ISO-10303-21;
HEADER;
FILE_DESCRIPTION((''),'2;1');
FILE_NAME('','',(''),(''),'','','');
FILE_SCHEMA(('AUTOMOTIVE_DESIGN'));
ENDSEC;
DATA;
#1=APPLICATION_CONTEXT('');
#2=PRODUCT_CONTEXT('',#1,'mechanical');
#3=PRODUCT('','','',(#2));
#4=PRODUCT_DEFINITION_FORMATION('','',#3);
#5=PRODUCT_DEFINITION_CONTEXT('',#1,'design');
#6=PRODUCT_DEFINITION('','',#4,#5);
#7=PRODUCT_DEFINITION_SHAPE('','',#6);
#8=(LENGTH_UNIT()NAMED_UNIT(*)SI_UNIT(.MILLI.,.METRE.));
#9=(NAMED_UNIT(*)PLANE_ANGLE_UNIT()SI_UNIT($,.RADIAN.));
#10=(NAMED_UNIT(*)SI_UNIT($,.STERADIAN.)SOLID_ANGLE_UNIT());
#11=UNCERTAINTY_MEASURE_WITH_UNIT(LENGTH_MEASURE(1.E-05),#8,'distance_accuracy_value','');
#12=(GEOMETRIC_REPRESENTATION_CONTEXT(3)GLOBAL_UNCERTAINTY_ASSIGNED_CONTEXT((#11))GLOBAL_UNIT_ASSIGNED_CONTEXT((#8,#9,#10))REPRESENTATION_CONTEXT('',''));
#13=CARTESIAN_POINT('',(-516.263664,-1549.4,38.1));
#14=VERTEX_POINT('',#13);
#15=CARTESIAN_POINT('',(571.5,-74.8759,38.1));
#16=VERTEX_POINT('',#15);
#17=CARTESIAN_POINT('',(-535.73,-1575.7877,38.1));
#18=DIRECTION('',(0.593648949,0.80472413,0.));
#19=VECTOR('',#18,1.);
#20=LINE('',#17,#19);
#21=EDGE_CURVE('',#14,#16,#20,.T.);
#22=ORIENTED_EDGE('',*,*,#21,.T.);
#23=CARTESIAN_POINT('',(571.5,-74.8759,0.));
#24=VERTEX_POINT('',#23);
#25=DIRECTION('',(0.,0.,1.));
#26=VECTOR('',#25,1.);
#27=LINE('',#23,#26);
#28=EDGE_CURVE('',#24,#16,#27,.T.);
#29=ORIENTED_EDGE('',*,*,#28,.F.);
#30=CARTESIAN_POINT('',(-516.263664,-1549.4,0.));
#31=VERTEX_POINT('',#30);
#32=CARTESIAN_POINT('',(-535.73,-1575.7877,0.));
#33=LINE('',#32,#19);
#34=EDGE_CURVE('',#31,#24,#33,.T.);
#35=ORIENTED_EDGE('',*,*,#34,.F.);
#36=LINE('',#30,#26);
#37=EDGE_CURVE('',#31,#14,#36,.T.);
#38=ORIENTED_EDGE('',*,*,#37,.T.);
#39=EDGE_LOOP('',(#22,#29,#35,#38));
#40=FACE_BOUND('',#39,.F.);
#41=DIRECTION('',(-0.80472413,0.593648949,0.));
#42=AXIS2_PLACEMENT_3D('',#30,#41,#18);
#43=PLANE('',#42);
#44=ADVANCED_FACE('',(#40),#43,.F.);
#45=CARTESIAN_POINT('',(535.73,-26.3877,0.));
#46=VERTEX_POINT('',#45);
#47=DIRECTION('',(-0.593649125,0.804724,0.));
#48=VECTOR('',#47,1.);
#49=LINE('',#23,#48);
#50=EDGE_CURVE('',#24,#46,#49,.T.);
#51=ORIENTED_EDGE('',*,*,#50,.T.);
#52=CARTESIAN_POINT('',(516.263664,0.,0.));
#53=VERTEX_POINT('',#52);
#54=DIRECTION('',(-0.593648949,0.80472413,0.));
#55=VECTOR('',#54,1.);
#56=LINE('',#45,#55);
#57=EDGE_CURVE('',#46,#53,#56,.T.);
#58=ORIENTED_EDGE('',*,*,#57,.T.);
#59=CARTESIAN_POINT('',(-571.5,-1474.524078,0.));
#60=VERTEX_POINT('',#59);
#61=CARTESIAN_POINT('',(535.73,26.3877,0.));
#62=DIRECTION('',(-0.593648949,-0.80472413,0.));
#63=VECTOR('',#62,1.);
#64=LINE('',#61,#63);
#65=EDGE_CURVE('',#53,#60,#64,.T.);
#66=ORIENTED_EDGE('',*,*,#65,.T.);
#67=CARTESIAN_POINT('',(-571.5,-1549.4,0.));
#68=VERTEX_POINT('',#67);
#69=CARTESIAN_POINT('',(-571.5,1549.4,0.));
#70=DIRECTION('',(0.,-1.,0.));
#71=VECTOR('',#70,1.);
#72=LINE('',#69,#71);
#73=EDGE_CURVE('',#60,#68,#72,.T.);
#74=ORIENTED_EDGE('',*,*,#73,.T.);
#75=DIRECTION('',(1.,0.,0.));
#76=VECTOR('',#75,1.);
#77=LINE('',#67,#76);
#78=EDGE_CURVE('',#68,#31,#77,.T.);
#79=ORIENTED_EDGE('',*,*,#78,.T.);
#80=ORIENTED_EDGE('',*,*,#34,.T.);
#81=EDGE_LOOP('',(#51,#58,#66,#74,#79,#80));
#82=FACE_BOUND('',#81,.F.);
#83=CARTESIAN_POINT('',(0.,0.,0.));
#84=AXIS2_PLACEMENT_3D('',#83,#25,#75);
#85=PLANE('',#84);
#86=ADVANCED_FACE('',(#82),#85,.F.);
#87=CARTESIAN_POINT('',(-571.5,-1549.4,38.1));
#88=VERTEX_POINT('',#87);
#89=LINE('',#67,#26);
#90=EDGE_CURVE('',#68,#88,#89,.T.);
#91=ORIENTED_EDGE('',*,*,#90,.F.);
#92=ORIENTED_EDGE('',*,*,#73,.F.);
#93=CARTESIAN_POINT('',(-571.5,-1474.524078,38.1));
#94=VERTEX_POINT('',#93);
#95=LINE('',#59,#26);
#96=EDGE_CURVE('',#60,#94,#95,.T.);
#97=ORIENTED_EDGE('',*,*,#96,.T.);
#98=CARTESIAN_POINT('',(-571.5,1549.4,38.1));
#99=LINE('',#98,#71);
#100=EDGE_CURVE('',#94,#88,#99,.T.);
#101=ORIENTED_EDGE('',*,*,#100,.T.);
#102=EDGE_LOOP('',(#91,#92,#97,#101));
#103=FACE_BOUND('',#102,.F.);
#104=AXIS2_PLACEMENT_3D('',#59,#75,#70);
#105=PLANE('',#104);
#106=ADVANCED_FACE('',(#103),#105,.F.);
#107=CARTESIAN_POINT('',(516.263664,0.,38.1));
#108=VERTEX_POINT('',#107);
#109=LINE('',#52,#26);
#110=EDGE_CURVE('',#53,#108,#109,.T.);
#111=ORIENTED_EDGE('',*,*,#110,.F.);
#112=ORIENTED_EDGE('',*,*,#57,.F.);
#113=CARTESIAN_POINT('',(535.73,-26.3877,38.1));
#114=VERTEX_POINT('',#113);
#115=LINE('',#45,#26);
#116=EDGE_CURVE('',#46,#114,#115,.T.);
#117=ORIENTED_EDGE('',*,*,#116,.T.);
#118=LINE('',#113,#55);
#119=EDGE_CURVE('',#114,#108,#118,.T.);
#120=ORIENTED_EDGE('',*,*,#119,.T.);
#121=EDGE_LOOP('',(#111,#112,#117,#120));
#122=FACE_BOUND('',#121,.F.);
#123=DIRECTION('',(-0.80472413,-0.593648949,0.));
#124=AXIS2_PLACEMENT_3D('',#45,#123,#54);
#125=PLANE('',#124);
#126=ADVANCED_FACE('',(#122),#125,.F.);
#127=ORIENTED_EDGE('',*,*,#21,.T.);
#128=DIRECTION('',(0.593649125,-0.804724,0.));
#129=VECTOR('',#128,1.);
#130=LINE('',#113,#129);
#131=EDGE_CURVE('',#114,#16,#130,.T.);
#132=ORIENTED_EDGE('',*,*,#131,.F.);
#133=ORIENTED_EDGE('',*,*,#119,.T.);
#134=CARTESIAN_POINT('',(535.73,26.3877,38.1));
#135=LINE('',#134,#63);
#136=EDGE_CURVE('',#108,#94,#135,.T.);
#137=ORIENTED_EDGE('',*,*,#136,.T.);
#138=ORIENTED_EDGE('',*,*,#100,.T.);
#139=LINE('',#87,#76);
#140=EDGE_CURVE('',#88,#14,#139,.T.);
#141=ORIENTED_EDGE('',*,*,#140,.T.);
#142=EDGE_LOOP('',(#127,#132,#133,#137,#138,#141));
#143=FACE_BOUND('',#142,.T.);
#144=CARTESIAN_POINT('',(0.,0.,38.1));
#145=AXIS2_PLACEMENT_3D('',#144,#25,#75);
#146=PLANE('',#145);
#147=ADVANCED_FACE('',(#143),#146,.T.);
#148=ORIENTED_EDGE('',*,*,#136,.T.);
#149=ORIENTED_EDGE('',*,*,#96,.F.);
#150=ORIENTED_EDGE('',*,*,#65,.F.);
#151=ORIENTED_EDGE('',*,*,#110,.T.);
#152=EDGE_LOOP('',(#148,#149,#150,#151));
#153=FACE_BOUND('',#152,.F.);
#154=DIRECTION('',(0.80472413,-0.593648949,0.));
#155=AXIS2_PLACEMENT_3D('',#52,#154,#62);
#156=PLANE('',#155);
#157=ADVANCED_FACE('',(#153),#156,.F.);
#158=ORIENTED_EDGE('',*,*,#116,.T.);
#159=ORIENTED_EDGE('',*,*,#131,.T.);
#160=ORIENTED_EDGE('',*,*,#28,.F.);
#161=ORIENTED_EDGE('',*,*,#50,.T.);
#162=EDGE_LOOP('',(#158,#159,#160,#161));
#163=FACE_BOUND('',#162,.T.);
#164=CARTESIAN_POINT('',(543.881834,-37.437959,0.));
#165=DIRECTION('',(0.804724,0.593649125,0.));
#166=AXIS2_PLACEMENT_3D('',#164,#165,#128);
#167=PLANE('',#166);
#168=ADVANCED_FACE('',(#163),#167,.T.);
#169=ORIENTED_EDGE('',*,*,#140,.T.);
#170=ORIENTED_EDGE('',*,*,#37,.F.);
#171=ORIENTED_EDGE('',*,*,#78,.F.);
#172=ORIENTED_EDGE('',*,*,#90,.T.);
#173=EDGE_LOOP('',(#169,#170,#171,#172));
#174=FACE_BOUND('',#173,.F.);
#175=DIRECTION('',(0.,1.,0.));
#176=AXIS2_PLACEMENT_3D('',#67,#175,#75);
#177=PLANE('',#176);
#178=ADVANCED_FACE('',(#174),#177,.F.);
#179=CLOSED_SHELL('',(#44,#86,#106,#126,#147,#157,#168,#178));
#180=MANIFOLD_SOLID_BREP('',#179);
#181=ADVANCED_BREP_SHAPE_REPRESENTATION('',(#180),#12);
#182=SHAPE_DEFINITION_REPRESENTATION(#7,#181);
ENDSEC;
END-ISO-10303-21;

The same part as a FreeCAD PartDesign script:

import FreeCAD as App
import Part
import Sketcher
from FreeCAD import Vector
Q = App.Units.Quantity


def add_polygon(sketch, points):
    """Adds a closed chain of lines whose ends are joined by coincident constraints."""
    first, n = sketch.GeometryCount, len(points)
    for a, b in zip(points, points[1:] + points[:1]):
        sketch.addGeometry(Part.LineSegment(App.Vector(*a, 0), App.Vector(*b, 0)), False)
    for i in range(n):
        sketch.addConstraint(Sketcher.Constraint("Coincident", first + i, 2, first + (i + 1) % n, 1))

doc = App.newDocument("Part")
body = doc.addObject("PartDesign::Body", "Body")

sketch1 = doc.addObject("Sketcher::SketchObject", "Sketch")
body.addObject(sketch1)
sketch1.AttachmentSupport = (doc.XY_Plane, [""])
sketch1.MapMode = "FlatFace"
add_polygon(sketch1, [(572, -75), (536, -26), (516, 0), (-572, -1475), (-572, -1549), (-516, -1549)])
sketch1.addConstraint(Sketcher.Constraint("Vertical", 3))
sketch1.addConstraint(Sketcher.Constraint("Horizontal", 4))
sketch1.addConstraint(Sketcher.Constraint("PointOnObject", 1, 2, -1))
sketch1.addConstraint(Sketcher.Constraint("Parallel", 0, 1))
sketch1.addConstraint(Sketcher.Constraint("Parallel", 2, 5))
sketch1.addConstraint(Sketcher.Constraint("Equal", 2, 5))
sketch1.addConstraint(Sketcher.Constraint("DistanceX", 2, 2, 5, 2, Q("45 in")))
sketch1.addConstraint(Sketcher.Constraint("DistanceY", 3, 2, -1, 1, Q("61 in")))
sketch1.addConstraint(Sketcher.Constraint("DistanceX", 2, 2, -1, 1, Q("22.5 in")))
sketch1.addConstraint(Sketcher.Constraint("DistanceX", 4, 1, 4, 2, 55.2363))
sketch1.addConstraint(Sketcher.Constraint("DistanceY", 3, 2, 3, 1, 74.876))
sketch1.addConstraint(Sketcher.Constraint("DistanceX", 1, 2, 0, 2, Q("0.7664 in")))
pad1 = doc.addObject("PartDesign::Pad", "Pad")
body.addObject(pad1)
pad1.Profile = sketch1
pad1.Length = Q("1.5 in")

doc.recompute()
